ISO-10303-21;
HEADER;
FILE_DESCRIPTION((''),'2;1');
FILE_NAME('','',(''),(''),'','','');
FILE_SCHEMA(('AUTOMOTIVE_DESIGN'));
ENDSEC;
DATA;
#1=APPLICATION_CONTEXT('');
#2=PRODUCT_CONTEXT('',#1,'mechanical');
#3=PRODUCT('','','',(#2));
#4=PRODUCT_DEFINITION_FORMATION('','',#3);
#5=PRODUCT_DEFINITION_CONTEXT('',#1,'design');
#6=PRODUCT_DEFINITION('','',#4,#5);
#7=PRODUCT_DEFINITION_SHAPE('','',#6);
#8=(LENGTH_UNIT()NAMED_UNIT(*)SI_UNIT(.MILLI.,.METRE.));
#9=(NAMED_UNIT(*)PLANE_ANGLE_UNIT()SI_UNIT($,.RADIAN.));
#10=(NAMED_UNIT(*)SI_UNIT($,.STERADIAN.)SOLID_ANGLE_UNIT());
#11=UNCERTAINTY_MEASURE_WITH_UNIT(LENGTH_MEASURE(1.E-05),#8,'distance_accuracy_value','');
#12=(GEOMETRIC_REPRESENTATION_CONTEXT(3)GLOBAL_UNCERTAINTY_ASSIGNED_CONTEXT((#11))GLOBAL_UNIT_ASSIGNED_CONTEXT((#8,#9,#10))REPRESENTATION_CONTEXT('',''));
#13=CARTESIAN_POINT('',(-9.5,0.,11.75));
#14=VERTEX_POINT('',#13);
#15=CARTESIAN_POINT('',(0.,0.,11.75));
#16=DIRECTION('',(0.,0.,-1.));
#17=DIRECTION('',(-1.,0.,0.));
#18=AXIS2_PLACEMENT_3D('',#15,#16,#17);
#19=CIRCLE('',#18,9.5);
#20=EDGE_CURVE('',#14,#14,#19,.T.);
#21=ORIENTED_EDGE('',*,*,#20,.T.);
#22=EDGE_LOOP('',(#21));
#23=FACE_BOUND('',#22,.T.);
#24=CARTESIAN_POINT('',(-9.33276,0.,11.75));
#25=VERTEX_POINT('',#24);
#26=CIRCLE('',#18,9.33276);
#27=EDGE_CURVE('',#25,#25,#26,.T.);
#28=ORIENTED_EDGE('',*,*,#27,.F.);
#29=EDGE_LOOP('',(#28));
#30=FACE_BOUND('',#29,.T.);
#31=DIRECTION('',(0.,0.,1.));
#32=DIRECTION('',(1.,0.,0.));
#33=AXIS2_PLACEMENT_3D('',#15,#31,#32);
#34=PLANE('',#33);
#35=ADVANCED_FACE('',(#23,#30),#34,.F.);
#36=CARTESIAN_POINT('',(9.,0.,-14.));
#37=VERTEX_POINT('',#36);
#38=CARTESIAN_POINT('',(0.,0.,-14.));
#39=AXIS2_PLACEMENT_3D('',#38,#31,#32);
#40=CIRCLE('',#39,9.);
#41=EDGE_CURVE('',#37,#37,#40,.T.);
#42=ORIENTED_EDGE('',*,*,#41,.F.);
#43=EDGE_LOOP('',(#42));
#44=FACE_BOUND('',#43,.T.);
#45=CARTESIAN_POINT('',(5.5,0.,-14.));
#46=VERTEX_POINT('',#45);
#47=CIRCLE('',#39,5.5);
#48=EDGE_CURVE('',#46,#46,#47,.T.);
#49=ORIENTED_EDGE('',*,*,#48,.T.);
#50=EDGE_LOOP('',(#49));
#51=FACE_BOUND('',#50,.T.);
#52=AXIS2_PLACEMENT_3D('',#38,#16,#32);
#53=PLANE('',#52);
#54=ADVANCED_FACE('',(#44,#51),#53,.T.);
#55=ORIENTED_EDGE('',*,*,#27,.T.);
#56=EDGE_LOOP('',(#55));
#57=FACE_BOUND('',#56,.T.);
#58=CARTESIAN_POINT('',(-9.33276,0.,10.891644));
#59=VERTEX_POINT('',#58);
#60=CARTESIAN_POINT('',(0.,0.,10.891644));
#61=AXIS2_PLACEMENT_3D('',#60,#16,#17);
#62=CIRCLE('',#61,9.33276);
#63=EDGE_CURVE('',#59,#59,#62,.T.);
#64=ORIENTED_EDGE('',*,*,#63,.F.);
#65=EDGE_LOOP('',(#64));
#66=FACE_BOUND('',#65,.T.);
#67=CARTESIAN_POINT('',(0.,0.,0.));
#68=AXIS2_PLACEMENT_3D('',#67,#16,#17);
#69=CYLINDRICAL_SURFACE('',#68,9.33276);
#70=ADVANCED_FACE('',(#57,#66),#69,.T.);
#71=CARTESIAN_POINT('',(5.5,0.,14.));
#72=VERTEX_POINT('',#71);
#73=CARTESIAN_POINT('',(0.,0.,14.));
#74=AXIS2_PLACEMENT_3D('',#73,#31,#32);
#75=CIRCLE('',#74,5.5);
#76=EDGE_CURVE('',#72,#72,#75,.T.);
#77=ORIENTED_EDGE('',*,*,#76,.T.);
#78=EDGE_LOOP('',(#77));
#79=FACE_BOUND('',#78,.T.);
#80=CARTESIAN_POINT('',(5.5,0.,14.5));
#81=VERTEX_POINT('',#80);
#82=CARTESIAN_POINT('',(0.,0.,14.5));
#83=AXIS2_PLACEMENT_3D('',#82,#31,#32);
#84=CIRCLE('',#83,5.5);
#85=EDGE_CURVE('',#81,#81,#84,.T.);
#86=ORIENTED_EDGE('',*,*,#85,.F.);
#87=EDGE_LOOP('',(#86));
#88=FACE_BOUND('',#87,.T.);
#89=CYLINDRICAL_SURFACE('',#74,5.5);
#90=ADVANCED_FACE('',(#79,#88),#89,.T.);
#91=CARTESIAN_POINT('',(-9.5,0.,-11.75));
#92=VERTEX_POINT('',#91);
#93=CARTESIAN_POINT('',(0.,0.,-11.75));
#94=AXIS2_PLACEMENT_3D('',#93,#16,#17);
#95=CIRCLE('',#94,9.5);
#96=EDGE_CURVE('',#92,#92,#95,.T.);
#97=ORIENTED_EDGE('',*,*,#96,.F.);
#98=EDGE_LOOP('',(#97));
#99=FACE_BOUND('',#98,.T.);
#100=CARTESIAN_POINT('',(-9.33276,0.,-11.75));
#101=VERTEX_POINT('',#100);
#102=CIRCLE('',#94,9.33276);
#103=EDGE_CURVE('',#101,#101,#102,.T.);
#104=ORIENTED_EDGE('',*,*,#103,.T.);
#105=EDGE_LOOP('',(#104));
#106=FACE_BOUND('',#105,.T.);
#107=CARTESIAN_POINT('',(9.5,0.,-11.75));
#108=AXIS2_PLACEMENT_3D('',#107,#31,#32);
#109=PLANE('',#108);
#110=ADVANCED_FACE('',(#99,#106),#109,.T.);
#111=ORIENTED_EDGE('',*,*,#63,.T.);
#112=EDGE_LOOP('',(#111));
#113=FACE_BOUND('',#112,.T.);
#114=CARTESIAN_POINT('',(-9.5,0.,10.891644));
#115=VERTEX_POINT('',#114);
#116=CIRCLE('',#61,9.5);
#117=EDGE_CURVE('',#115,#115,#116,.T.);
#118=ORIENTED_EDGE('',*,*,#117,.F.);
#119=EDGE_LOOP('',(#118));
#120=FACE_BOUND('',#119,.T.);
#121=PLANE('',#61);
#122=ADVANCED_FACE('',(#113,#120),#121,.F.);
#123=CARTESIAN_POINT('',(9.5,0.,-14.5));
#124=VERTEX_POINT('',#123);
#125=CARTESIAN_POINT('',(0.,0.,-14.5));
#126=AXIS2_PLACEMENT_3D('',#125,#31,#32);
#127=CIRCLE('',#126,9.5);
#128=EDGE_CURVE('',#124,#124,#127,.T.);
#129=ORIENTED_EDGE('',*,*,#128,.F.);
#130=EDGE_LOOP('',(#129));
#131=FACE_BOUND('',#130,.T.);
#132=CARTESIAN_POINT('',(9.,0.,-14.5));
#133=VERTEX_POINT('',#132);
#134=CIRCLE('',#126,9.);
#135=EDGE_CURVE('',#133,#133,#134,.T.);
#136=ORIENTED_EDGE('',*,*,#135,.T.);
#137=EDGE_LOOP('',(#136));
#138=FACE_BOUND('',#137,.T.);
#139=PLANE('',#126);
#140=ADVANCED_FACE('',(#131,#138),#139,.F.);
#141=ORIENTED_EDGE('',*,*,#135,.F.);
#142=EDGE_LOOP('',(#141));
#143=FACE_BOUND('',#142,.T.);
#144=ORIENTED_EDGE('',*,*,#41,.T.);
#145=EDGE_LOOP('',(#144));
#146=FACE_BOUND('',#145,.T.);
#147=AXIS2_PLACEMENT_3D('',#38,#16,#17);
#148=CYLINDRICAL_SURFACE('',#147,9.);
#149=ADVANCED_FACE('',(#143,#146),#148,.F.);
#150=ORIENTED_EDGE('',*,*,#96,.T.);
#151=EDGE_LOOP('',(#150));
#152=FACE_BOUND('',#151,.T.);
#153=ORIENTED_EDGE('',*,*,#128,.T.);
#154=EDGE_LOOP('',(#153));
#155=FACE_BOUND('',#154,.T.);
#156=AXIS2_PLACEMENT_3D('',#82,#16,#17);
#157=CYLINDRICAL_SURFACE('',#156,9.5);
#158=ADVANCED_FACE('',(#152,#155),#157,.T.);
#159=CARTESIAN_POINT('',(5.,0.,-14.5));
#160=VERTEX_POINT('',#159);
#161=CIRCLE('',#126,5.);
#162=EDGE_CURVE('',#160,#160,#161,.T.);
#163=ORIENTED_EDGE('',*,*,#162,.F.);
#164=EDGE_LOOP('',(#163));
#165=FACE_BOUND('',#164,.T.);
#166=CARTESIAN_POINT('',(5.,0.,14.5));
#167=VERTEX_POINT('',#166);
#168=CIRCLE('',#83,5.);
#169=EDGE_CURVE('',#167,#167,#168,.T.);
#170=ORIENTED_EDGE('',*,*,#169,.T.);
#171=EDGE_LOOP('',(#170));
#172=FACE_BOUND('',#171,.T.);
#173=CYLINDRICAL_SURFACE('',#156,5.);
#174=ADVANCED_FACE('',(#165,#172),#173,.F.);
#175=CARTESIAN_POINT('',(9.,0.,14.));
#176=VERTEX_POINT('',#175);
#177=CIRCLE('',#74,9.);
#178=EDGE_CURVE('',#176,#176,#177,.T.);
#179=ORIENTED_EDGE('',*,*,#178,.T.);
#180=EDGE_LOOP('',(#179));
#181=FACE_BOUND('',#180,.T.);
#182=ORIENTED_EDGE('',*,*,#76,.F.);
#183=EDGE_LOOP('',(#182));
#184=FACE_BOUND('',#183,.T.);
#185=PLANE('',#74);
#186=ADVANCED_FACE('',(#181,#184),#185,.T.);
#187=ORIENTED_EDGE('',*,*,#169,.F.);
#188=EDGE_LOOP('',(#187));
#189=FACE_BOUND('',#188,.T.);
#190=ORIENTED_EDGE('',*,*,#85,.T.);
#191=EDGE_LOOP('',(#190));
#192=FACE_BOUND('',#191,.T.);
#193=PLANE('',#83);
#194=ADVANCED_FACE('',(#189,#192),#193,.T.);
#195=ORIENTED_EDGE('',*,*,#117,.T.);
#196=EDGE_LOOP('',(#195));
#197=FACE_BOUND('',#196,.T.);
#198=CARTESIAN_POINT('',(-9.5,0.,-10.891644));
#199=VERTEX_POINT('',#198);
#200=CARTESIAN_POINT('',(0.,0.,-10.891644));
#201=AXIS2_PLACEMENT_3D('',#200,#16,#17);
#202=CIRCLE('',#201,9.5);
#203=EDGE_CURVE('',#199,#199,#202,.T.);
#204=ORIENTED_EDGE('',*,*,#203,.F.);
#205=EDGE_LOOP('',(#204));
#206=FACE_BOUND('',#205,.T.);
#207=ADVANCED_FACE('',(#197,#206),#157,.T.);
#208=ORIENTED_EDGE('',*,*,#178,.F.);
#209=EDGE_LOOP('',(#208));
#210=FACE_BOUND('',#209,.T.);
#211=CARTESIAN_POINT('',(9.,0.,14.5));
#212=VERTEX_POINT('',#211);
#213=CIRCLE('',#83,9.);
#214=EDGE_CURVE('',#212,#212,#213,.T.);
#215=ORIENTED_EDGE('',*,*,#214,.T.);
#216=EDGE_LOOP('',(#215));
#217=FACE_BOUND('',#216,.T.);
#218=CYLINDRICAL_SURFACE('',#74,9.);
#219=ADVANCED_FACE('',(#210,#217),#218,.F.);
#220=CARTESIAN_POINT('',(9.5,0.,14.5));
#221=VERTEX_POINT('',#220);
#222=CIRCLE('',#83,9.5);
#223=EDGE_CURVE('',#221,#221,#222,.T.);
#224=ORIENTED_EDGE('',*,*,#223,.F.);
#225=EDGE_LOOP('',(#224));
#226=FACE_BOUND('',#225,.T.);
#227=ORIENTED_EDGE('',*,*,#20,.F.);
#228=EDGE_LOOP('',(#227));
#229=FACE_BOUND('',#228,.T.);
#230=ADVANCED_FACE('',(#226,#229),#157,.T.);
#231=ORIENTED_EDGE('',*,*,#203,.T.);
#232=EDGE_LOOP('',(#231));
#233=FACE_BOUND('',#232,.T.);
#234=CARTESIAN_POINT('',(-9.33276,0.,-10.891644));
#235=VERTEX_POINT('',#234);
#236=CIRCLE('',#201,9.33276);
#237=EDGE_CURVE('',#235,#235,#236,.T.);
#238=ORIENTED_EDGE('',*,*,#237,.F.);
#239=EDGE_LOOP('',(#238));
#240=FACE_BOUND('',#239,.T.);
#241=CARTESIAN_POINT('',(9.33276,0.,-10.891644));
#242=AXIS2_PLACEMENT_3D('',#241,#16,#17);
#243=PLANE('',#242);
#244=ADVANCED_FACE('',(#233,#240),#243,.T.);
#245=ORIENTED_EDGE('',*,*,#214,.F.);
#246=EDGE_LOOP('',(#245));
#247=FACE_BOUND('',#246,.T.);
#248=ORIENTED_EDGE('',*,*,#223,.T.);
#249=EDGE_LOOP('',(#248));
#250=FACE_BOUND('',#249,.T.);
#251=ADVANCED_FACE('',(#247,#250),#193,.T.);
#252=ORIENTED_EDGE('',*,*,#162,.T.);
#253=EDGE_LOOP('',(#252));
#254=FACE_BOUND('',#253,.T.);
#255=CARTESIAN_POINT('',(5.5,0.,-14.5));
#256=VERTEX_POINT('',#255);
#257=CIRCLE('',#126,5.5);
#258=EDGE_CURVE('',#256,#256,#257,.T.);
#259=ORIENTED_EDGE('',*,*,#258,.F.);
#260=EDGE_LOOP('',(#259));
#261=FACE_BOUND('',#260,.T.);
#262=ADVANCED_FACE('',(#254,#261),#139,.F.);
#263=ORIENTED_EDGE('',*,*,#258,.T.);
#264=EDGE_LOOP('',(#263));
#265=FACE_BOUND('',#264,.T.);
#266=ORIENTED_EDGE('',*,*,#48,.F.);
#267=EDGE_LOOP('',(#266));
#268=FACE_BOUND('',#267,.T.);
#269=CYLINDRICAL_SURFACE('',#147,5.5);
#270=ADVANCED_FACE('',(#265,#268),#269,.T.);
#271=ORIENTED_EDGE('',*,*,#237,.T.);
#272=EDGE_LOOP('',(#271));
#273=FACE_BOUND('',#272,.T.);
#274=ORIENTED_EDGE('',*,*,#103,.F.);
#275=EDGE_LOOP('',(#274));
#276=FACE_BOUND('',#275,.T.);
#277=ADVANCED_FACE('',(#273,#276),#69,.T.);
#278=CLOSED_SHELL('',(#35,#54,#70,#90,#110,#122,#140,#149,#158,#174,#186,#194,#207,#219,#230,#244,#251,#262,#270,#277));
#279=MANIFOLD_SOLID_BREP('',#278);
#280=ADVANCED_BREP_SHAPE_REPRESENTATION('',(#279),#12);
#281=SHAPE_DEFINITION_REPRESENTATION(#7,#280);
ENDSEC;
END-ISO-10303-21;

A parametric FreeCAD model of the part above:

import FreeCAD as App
import Part
import Sketcher

V = App.Vector

doc = App.newDocument("Part")
params = doc.addObject("Spreadsheet::Sheet", "Params")
for row, (alias, value) in enumerate([
    ("sketch1_diameter", "19 mm"),
    ("sketch1_diameter2", "10 mm"),
    ("pad1_length", "29 mm"),
    ("groove_angle", "360 deg"),
    ("sketch3_diameter", "18 mm"),
    ("sketch3_diameter2", "11 mm"),
    ("pocket1_length", "0.5 mm"),
], start=1):
    params.set(f"A{row}", alias)
    params.set(f"B{row}", "=" + value)
    params.setAlias(f"B{row}", alias)

body = doc.addObject("PartDesign::Body", "Body")

# Sketch on XY plane
sketch1 = body.newObject("Sketcher::SketchObject", "Sketch")
sketch1.AttachmentSupport = (doc.getObject("XY_Plane"), [""])
sketch1.MapMode = "FlatFace"
sketch1.addGeometry([
    Part.Circle(V(0, 0, 0), V(0, 0, 1), 9.5),
    Part.Circle(V(0, 0, 0), V(0, 0, 1), 5),
], False)
sketch1.addConstraint([
    Sketcher.Constraint("Coincident", 0, 3, -1, 1),
    Sketcher.Constraint("Coincident", 1, 3, -1, 1),
    Sketcher.Constraint("Diameter", 0, 19.0),
    Sketcher.Constraint("Diameter", 1, 10.0),
])
sketch1.setExpression("Constraints[2]", "Params.sketch1_diameter")
sketch1.setExpression("Constraints[3]", "Params.sketch1_diameter2")
pad1 = body.newObject("PartDesign::Pad", "Pad")
pad1.Profile = sketch1
pad1.setExpression("Length", "Params.pad1_length")
pad1.Midplane = True

# Sketch on XZ plane
sketch2 = body.newObject("Sketcher::SketchObject", "Sketch001")
sketch2.AttachmentSupport = (doc.getObject("XZ_Plane"), [""])
sketch2.MapMode = "FlatFace"
sketch2.addGeometry([
    Part.LineSegment(V(9.33276, 10.891644, 0), V(9.33276, 11.75, 0)),  # 0
    Part.LineSegment(V(9.33276, 11.75, 0), V(9.5, 11.75, 0)),  # 1
    Part.LineSegment(V(9.5, 11.75, 0), V(9.5, 10.891644, 0)),  # 2
    Part.LineSegment(V(9.5, 10.891644, 0), V(9.33276, 10.891644, 0)),  # 3
    Part.LineSegment(V(9.33276, -11.75, 0), V(9.33276, -10.891644, 0)),  # 4
    Part.LineSegment(V(9.33276, -10.891644, 0), V(9.5, -10.891644, 0)),  # 5
    Part.LineSegment(V(9.5, -10.891644, 0), V(9.5, -11.75, 0)),  # 6
    Part.LineSegment(V(9.5, -11.75, 0), V(9.33276, -11.75, 0)),  # 7
], False)
sketch2.addConstraint([
    Sketcher.Constraint("Coincident", 0, 2, 1, 1),
    Sketcher.Constraint("Coincident", 1, 2, 2, 1),
    Sketcher.Constraint("Coincident", 2, 2, 3, 1),
    Sketcher.Constraint("Coincident", 3, 2, 0, 1),
    Sketcher.Constraint("Coincident", 4, 2, 5, 1),
    Sketcher.Constraint("Coincident", 5, 2, 6, 1),
    Sketcher.Constraint("Coincident", 6, 2, 7, 1),
    Sketcher.Constraint("Coincident", 7, 2, 4, 1),
    Sketcher.Constraint("Vertical", 0),
    Sketcher.Constraint("Horizontal", 1),
    Sketcher.Constraint("Vertical", 2),
    Sketcher.Constraint("Horizontal", 3),
    Sketcher.Constraint("Vertical", 4),
    Sketcher.Constraint("Horizontal", 5),
    Sketcher.Constraint("Vertical", 6),
    Sketcher.Constraint("Horizontal", 7),
    Sketcher.Constraint("Symmetric", 3, 2, 4, 2, -1),
    Sketcher.Constraint("Symmetric", 1, 2, 6, 2, -1),
    Sketcher.Constraint("DistanceX", -1, 1, 1, 2, 9.5),
    Sketcher.Constraint("DistanceY", 6, 2, 1, 2, 23.5),
    Sketcher.Constraint("DistanceX", 1, 1, 1, 2, 0.16724),
    Sketcher.Constraint("DistanceY", 0, 1, 0, 2, 0.858356),
])
groove = body.newObject("PartDesign::Groove", "Groove")
groove.Profile = sketch2
groove.ReferenceAxis = (sketch2, ["V_Axis"])
groove.setExpression("Angle", "Params.groove_angle")

# Sketch on XY plane
sketch3 = body.newObject("Sketcher::SketchObject", "Sketch002")
sketch3.AttachmentSupport = (doc.getObject("XY_Plane"), [""])
sketch3.MapMode = "FlatFace"
sketch3.AttachmentOffset = App.Placement(V(0, 0, 14.5), App.Rotation())
sketch3.addGeometry([
    Part.Circle(V(0, 0, 0), V(0, 0, 1), 9),
    Part.Circle(V(0, 0, 0), V(0, 0, 1), 5.5),
], False)
sketch3.addConstraint([
    Sketcher.Constraint("Coincident", 0, 3, -1, 1),
    Sketcher.Constraint("Coincident", 1, 3, -1, 1),
    Sketcher.Constraint("Diameter", 0, 18.0),
    Sketcher.Constraint("Diameter", 1, 11.0),
])
sketch3.setExpression("Constraints[2]", "Params.sketch3_diameter")
sketch3.setExpression("Constraints[3]", "Params.sketch3_diameter2")
pocket1 = body.newObject("PartDesign::Pocket", "Pocket")
pocket1.Profile = sketch3
pocket1.setExpression("Length", "Params.pocket1_length")
doc.recompute()

mirrored = body.newObject("PartDesign::Mirrored", "Mirrored")
mirrored.Originals = [pocket1]
mirrored.MirrorPlane = (doc.getObject("XY_Plane"), [""])
body.Tip = mirrored

doc.recompute()
